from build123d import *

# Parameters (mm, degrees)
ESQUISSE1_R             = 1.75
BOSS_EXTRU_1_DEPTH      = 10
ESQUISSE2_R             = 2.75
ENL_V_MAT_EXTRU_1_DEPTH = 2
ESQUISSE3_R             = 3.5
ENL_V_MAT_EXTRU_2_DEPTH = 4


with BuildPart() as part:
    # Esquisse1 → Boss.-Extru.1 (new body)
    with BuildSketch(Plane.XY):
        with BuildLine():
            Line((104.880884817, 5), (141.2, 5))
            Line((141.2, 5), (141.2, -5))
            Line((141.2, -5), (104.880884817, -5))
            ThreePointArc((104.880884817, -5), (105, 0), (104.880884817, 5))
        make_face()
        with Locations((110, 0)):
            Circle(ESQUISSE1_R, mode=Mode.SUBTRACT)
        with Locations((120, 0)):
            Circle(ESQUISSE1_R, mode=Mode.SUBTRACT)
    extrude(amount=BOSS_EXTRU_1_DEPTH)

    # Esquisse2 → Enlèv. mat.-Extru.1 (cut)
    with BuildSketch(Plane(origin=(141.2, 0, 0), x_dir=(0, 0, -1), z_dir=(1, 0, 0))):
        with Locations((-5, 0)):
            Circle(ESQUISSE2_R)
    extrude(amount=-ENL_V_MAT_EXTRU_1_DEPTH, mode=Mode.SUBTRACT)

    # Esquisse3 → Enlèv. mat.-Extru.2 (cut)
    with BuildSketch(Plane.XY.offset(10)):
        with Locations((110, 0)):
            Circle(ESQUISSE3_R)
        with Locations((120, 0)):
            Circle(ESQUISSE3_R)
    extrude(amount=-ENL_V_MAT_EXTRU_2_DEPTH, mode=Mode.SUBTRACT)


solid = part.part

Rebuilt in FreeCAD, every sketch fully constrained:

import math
import FreeCAD as App
import Part
import Sketcher
from FreeCAD import Vector
Q = App.Units.Quantity

doc = App.newDocument("Part")
body = doc.addObject("PartDesign::Body", "Body")

# Sketch on XY plane
sketch1 = body.newObject("Sketcher::SketchObject", "Sketch")
sketch1.AttachmentSupport = (doc.getObject("XY_Plane"), [""])
sketch1.MapMode = "FlatFace"
sketch1.addGeometry(Part.LineSegment(Vector(141.2, 5, 0), Vector(104.9, 5, 0)), False)
sketch1.addGeometry(Part.ArcOfCircle(Part.Circle(Vector(0, 0, 0), Vector(0, 0, 1), 105), math.radians(-2.73), math.radians(2.73)), False)
sketch1.addGeometry(Part.LineSegment(Vector(104.9, -5, 0), Vector(141.2, -5, 0)), False)
sketch1.addGeometry(Part.LineSegment(Vector(141.2, -5, 0), Vector(141.2, 5, 0)), False)
sketch1.addGeometry(Part.Circle(Vector(120, 0, 0), Vector(0, 0, 1), 1.8), False)
sketch1.addGeometry(Part.Circle(Vector(110, 0, 0), Vector(0, 0, 1), 1.8), False)
sketch1.addConstraint(Sketcher.Constraint("Coincident", 0, 2, 1, 2))
sketch1.addConstraint(Sketcher.Constraint("Coincident", 1, 1, 2, 1))
sketch1.addConstraint(Sketcher.Constraint("Coincident", 2, 2, 3, 1))
sketch1.addConstraint(Sketcher.Constraint("Coincident", 3, 2, 0, 1))
sketch1.addConstraint(Sketcher.Constraint("Horizontal", 0))
sketch1.addConstraint(Sketcher.Constraint("Horizontal", 2))
sketch1.addConstraint(Sketcher.Constraint("Vertical", 3))
sketch1.addConstraint(Sketcher.Constraint("Coincident", 1, 3, -1, 1))
sketch1.addConstraint(Sketcher.Constraint("Equal", 4, 5))
sketch1.addConstraint(Sketcher.Constraint("PointOnObject", 4, 3, -1))
sketch1.addConstraint(Sketcher.Constraint("PointOnObject", 5, 3, -1))
sketch1.addConstraint(Sketcher.Constraint("Vertical", 0, 2, 1, 1))
sketch1.addConstraint(Sketcher.Constraint("Radius", 1, Q("105 mm")))
sketch1.addConstraint(Sketcher.Constraint("Diameter", 4, Q("3.5 mm")))
sketch1.addConstraint(Sketcher.Constraint("DistanceY", 3, 1, 3, 2, Q("10 mm")))
sketch1.addConstraint(Sketcher.Constraint("DistanceX", -1, 1, 4, 3, Q("120 mm")))
sketch1.addConstraint(Sketcher.Constraint("DistanceX", -1, 1, 5, 3, Q("110 mm")))
sketch1.addConstraint(Sketcher.Constraint("DistanceX", -1, 1, 2, 2, Q("141.2 mm")))
pad1 = body.newObject("PartDesign::Pad", "Pad")
pad1.Profile = sketch1
pad1.Length = 10

# Sketch on YZ plane
sketch2 = body.newObject("Sketcher::SketchObject", "Sketch001")
sketch2.AttachmentSupport = (doc.getObject("YZ_Plane"), [""])
sketch2.MapMode = "FlatFace"
sketch2.AttachmentOffset = App.Placement(Vector(0, 0, 141.2), App.Rotation())
sketch2.addGeometry(Part.Circle(Vector(0, 5, 0), Vector(0, 0, 1), 2.8), False)
sketch2.addConstraint(Sketcher.Constraint("PointOnObject", 0, 3, -2))
sketch2.addConstraint(Sketcher.Constraint("Diameter", 0, Q("5.5 mm")))
sketch2.addConstraint(Sketcher.Constraint("DistanceY", -1, 1, 0, 3, Q("5 mm")))
pocket1 = body.newObject("PartDesign::Pocket", "Pocket")
pocket1.Profile = sketch2
pocket1.Length = 2

# Sketch on XY plane
sketch3 = body.newObject("Sketcher::SketchObject", "Sketch002")
sketch3.AttachmentSupport = (doc.getObject("XY_Plane"), [""])
sketch3.MapMode = "FlatFace"
sketch3.AttachmentOffset = App.Placement(Vector(0, 0, 10), App.Rotation())
sketch3.addGeometry(Part.Circle(Vector(110, 0, 0), Vector(0, 0, 1), 3.5), False)
sketch3.addGeometry(Part.Circle(Vector(120, 0, 0), Vector(0, 0, 1), 3.5), False)
sketch3.addConstraint(Sketcher.Constraint("Equal", 0, 1))
sketch3.addConstraint(Sketcher.Constraint("PointOnObject", 0, 3, -1))
sketch3.addConstraint(Sketcher.Constraint("PointOnObject", 1, 3, -1))
sketch3.addConstraint(Sketcher.Constraint("Diameter", 0, Q("7 mm")))
sketch3.addConstraint(Sketcher.Constraint("DistanceX", -1, 1, 0, 3, Q("110 mm")))
sketch3.addConstraint(Sketcher.Constraint("DistanceX", -1, 1, 1, 3, Q("120 mm")))
pocket2 = body.newObject("PartDesign::Pocket", "Pocket001")
pocket2.Profile = sketch3
pocket2.Length = 4

doc.recompute()
